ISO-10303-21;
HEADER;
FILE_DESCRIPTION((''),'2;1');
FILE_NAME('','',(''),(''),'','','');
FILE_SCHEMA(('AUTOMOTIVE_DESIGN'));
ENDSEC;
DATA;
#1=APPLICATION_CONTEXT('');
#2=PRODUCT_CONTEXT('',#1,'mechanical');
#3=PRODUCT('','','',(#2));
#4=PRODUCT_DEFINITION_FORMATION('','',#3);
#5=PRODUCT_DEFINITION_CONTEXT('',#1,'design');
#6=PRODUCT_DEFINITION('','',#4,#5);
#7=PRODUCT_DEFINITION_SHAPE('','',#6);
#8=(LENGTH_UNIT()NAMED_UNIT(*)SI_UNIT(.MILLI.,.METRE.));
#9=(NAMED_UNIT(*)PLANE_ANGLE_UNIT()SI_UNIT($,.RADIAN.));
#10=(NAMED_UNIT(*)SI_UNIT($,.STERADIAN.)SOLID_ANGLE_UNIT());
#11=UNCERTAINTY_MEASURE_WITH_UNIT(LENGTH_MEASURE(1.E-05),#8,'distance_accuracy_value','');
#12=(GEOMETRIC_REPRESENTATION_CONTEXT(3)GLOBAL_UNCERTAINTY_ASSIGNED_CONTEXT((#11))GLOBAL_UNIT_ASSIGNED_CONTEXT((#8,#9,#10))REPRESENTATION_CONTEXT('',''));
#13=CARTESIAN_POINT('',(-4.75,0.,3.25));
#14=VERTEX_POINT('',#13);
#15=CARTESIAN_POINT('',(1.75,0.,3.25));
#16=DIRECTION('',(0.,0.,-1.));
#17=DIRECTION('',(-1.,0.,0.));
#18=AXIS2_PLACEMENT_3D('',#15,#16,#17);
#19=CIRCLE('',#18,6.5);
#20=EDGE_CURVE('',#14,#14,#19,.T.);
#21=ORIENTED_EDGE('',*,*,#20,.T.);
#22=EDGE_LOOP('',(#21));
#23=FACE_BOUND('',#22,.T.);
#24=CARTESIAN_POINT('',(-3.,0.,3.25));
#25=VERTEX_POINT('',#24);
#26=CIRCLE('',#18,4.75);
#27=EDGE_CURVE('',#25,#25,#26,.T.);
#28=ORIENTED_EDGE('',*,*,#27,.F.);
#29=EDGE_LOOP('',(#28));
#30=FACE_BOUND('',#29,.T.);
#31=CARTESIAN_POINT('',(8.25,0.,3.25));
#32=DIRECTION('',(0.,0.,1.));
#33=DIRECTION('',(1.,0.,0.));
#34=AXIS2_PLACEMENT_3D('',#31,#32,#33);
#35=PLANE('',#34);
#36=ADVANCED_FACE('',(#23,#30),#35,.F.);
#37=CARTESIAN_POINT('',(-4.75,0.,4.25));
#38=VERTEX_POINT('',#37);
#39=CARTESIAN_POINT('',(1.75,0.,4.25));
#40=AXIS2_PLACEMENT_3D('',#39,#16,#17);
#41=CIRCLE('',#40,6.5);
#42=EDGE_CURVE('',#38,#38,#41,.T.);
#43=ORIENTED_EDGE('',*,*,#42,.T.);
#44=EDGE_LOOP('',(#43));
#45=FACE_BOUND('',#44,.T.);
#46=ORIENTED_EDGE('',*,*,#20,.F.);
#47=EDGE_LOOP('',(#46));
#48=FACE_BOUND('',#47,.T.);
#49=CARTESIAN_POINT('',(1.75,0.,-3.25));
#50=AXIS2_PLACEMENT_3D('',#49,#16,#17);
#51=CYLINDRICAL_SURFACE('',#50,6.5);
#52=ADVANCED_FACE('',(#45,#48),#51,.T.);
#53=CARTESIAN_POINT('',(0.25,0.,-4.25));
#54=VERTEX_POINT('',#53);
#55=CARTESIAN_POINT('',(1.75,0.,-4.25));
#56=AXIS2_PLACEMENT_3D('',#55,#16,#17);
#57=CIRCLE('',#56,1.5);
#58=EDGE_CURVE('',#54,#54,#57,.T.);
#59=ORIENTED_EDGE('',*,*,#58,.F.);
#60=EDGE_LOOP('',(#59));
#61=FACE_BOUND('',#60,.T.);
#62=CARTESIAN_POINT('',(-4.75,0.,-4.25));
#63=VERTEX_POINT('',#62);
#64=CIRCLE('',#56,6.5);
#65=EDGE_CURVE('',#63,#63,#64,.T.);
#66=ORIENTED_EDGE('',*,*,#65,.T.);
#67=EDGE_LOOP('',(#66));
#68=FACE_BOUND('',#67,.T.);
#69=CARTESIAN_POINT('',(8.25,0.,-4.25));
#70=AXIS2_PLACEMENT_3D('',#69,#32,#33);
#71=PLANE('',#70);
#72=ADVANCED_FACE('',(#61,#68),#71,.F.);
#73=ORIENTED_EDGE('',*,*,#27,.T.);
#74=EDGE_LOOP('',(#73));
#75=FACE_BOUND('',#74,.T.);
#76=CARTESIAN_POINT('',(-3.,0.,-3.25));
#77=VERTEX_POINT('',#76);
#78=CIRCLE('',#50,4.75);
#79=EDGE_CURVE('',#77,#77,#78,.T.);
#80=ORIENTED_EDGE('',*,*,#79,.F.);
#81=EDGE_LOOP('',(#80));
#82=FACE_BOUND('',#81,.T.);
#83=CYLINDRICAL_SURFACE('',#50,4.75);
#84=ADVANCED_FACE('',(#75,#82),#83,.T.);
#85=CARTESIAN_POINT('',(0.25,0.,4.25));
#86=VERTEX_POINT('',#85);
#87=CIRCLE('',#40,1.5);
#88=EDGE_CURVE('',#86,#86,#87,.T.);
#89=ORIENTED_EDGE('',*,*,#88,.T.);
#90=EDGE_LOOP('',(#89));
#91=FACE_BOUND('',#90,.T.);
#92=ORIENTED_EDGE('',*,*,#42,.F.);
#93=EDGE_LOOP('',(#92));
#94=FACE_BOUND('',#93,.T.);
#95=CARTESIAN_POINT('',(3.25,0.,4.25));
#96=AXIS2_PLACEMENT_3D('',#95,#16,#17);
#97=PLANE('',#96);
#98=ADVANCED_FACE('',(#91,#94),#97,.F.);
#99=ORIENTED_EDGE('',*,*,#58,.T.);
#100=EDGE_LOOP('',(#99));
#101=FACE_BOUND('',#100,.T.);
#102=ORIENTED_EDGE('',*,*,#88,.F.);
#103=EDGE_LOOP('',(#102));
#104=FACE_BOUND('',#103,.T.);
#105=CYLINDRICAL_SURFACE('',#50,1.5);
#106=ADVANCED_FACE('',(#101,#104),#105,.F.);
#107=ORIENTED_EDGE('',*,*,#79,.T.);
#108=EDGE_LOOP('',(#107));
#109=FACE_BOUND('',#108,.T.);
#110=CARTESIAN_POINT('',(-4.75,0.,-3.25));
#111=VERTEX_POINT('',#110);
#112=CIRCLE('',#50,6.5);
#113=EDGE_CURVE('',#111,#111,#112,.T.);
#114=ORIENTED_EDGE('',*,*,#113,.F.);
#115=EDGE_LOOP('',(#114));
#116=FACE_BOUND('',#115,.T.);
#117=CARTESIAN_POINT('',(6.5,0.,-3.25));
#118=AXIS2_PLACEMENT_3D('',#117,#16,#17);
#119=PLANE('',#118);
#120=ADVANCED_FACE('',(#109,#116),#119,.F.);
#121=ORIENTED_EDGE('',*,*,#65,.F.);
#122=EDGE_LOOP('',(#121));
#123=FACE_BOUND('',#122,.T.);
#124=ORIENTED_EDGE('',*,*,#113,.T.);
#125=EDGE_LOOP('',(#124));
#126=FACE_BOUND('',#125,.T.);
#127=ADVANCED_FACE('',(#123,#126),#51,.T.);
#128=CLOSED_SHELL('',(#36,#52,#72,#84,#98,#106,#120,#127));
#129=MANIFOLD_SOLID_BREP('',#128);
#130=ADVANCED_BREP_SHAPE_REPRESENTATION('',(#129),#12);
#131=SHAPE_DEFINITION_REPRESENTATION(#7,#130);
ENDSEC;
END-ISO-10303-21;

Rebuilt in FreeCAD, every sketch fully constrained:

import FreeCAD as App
import Part
import Sketcher

V = App.Vector


def add_polygon(sketch, points):
    """Adds a closed chain of lines whose ends are joined by coincident constraints."""
    first, n = sketch.GeometryCount, len(points)
    for a, b in zip(points, points[1:] + points[:1]):
        sketch.addGeometry(Part.LineSegment(App.Vector(*a, 0), App.Vector(*b, 0)), False)
    for i in range(n):
        sketch.addConstraint(Sketcher.Constraint("Coincident", first + i, 2, first + (i + 1) % n, 1))

doc = App.newDocument("Part")
body = doc.addObject("PartDesign::Body", "Body")

# Sketch on XZ plane
sketch1 = doc.addObject("Sketcher::SketchObject", "Sketch")
body.addObject(sketch1)
sketch1.AttachmentSupport = (doc.XZ_Plane, [""])
sketch1.MapMode = "FlatFace"
add_polygon(sketch1, [(6.5, 3.25), (6.5, -3.25), (8.25, -3.25), (8.25, -4.25), (3.25, -4.25), (3.25, 4.25), (8.25, 4.25), (8.25, 3.25)])  # lines 0-7
sketch1.addGeometry(Part.LineSegment(V(1.75, -4.25, 0), V(1.75, 4.25, 0)), True)  # axis
sketch1.addConstraint(Sketcher.Constraint("Vertical", 0))
sketch1.addConstraint(Sketcher.Constraint("Horizontal", 1))
sketch1.addConstraint(Sketcher.Constraint("Vertical", 2))
sketch1.addConstraint(Sketcher.Constraint("Horizontal", 3))
sketch1.addConstraint(Sketcher.Constraint("Vertical", 4))
sketch1.addConstraint(Sketcher.Constraint("Horizontal", 5))
sketch1.addConstraint(Sketcher.Constraint("Vertical", 6))
sketch1.addConstraint(Sketcher.Constraint("Horizontal", 7))
sketch1.addConstraint(Sketcher.Constraint("Vertical", 8))
sketch1.addConstraint(Sketcher.Constraint("Symmetric", 2, 2, 5, 2, -1))
sketch1.addConstraint(Sketcher.Constraint("Horizontal", 3, 2, 8, 1))
sketch1.addConstraint(Sketcher.Constraint("Horizontal", 5, 2, 8, 2))
sketch1.addConstraint(Sketcher.Constraint("Equal", 2, 6))
sketch1.addConstraint(Sketcher.Constraint("DistanceX", 3, 2, 3, 1, 5.0))
sketch1.addConstraint(Sketcher.Constraint("DistanceY", 2, 2, 2, 1, 1.0))
sketch1.addConstraint(Sketcher.Constraint("DistanceY", 0, 2, 0, 1, 6.5))
sketch1.addConstraint(Sketcher.Constraint("DistanceX", 1, 1, 1, 2, 1.75))
sketch1.addConstraint(Sketcher.Constraint("DistanceX", -1, 1, 0, 2, 6.5))
sketch1.addConstraint(Sketcher.Constraint("DistanceX", 8, 1, 3, 2, 1.5))
revolution = doc.addObject("PartDesign::Revolution", "Revolution")
body.addObject(revolution)
revolution.Profile = sketch1
revolution.ReferenceAxis = (sketch1, ["Axis0"])
revolution.Angle = 360

doc.recompute()
